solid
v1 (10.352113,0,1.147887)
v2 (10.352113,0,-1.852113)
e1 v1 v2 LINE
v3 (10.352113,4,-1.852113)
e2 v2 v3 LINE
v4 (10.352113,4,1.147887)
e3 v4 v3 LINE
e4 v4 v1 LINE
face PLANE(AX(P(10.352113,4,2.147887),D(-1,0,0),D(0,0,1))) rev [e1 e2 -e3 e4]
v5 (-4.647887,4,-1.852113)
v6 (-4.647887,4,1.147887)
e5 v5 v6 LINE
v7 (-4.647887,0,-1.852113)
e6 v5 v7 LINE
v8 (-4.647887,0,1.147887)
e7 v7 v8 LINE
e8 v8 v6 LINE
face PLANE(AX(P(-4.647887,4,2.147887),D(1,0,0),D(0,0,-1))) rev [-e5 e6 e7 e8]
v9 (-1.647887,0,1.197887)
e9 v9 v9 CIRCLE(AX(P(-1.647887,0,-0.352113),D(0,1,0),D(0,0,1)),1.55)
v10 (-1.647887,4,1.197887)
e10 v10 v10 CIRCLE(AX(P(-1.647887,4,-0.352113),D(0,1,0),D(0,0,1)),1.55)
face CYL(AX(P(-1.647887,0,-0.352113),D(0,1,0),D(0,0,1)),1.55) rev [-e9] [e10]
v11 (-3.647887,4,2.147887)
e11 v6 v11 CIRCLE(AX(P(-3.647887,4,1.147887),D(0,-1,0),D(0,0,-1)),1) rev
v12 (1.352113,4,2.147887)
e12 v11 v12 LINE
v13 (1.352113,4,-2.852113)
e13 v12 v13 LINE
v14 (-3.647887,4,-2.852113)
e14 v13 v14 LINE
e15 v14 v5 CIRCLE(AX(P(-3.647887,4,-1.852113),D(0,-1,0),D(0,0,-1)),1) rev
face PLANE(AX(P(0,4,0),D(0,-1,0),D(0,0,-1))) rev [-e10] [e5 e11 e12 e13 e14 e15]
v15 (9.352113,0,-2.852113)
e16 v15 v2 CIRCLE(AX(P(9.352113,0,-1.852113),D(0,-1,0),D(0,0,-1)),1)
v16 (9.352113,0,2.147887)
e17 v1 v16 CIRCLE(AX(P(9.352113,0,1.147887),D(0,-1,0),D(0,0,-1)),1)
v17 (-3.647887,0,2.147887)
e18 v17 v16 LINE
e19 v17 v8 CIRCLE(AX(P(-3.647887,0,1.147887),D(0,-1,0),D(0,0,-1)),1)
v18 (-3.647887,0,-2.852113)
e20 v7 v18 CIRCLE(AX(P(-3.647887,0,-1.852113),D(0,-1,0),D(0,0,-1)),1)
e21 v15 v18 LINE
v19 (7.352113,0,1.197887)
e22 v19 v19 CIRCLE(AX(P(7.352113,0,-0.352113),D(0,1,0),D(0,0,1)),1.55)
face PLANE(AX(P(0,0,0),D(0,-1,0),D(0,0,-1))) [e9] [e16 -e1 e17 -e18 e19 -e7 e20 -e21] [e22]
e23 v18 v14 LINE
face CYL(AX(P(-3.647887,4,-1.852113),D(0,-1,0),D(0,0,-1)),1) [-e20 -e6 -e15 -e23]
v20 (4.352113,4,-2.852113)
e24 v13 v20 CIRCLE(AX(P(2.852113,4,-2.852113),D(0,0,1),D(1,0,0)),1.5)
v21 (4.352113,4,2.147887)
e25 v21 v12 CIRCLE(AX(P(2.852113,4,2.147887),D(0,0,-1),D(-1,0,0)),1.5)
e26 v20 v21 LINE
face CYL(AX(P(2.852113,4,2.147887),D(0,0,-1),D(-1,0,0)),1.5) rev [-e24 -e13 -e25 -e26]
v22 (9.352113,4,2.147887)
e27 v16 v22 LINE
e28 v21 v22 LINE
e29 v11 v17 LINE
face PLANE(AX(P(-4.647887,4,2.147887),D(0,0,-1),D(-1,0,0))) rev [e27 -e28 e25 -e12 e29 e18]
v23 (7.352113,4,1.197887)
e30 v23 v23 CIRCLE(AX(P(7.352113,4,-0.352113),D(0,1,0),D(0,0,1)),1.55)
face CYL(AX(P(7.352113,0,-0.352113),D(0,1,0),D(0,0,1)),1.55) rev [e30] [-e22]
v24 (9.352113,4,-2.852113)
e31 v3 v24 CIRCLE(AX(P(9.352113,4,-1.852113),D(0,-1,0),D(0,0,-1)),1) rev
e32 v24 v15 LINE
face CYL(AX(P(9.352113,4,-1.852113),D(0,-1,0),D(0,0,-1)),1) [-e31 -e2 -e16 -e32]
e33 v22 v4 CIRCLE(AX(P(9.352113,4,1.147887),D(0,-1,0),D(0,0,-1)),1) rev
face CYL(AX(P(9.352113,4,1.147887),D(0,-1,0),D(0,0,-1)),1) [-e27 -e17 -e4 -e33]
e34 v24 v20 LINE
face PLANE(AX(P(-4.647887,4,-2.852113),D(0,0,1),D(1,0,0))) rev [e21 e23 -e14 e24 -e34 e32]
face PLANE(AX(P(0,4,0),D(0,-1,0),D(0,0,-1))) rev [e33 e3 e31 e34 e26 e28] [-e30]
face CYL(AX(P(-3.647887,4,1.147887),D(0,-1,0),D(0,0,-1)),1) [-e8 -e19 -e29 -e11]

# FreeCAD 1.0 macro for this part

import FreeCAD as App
import Part
import Sketcher
from FreeCAD import Vector
Q = App.Units.Quantity


def edges_at(feature, points):
    """Names of the edges that pass closest to the given points."""
    edges = feature.Shape.Edges
    near = lambda p: min(range(len(edges)), key=lambda i: edges[i].distToShape(Part.Vertex(*p))[0])
    return sorted({f"Edge{near(p) + 1}" for p in points})

doc = App.newDocument("Part")
body = doc.addObject("PartDesign::Body", "Body")

# Sketch on XZ plane
sketch1 = body.newObject("Sketcher::SketchObject", "Sketch")
sketch1.AttachmentSupport = (doc.getObject("XZ_Plane"), [""])
sketch1.MapMode = "FlatFace"
sketch1.addGeometry([
    Part.LineSegment(Vector(-5, -3, 0), Vector(-5, 2, 0)),
    Part.LineSegment(Vector(-5, 2, 0), Vector(10, 2, 0)),
    Part.LineSegment(Vector(10, 2, 0), Vector(10, -3, 0)),
    Part.LineSegment(Vector(10, -3, 0), Vector(-5, -3, 0)),
], False)
sketch1.addConstraint([
    Sketcher.Constraint("Coincident", 0, 2, 1, 1),
    Sketcher.Constraint("Coincident", 1, 2, 2, 1),
    Sketcher.Constraint("Coincident", 2, 2, 3, 1),
    Sketcher.Constraint("Coincident", 3, 2, 0, 1),
    Sketcher.Constraint("Vertical", 0),
    Sketcher.Constraint("Horizontal", 1),
    Sketcher.Constraint("Vertical", 2),
    Sketcher.Constraint("Horizontal", 3),
    Sketcher.Constraint("DistanceX", 1, 1, 1, 2, Q("15 mm")),
    Sketcher.Constraint("DistanceY", 0, 1, 0, 2, Q("5 mm")),
    Sketcher.Constraint("DistanceX", 0, 2, -1, 1, Q("4.647887 mm")),
    Sketcher.Constraint("DistanceY", -1, 1, 0, 2, Q("2.147887 mm")),
])
pad1 = body.newObject("PartDesign::Pad", "Pad")
pad1.Profile = sketch1
pad1.Length = 4
pad1.Reversed = True

# Sketch on XY plane
sketch2 = body.newObject("Sketcher::SketchObject", "Sketch001")
sketch2.AttachmentSupport = (doc.getObject("XY_Plane"), [""])
sketch2.MapMode = "FlatFace"
sketch2.AttachmentOffset = App.Placement(Vector(0, 0, -2.852113), App.Rotation())
sketch2.addGeometry(Part.Circle(Vector(2.9, 4, 0), Vector(0, 0, 1), 1.5), False)
sketch2.addConstraint([
    Sketcher.Constraint("Diameter", 0, Q("3 mm")),
    Sketcher.Constraint("DistanceY", -1, 1, 0, 3, Q("4 mm")),
    Sketcher.Constraint("DistanceX", -1, 1, 0, 3, Q("2.852113 mm")),
])
pocket1 = body.newObject("PartDesign::Pocket", "Pocket")
pocket1.Profile = sketch2
pocket1.Type = "ThroughAll"
pocket1.Midplane = True

# Sketch on XZ plane
sketch3 = body.newObject("Sketcher::SketchObject", "Sketch002")
sketch3.AttachmentSupport = (doc.getObject("XZ_Plane"), [""])
sketch3.MapMode = "FlatFace"
sketch3.AttachmentOffset = App.Placement(Vector(0, 0, -4), App.Rotation())
sketch3.addGeometry([
    Part.Circle(Vector(-1.6, -0.4, 0), Vector(0, 0, 1), 1.6),
    Part.Circle(Vector(7.4, -0.4, 0), Vector(0, 0, 1), 1.6),
], False)
sketch3.addConstraint([
    Sketcher.Constraint("Equal", 0, 1),
    Sketcher.Constraint("Horizontal", 0, 3, 1, 3),
    Sketcher.Constraint("Diameter", 0, Q("3.1 mm")),
    Sketcher.Constraint("DistanceX", 0, 3, 1, 3, Q("9 mm")),
    Sketcher.Constraint("DistanceX", 0, 3, -1, 1, Q("1.647887 mm")),
    Sketcher.Constraint("DistanceY", 0, 3, -1, 1, Q("0.352113 mm")),
])
pocket2 = body.newObject("PartDesign::Pocket", "Pocket001")
pocket2.Profile = sketch3
pocket2.Type = "ThroughAll"
pocket2.Reversed = True
doc.recompute()

fillet = body.newObject("PartDesign::Fillet", "Fillet")
fillet.Base = (pocket2, edges_at(pocket2, [
    (-4.648, 2, -2.852),
    (10.352, 2, -2.852),
    (10.352, 2, 2.148),
    (-4.648, 2, 2.148),
]))
fillet.Radius = 1

doc.recompute()
